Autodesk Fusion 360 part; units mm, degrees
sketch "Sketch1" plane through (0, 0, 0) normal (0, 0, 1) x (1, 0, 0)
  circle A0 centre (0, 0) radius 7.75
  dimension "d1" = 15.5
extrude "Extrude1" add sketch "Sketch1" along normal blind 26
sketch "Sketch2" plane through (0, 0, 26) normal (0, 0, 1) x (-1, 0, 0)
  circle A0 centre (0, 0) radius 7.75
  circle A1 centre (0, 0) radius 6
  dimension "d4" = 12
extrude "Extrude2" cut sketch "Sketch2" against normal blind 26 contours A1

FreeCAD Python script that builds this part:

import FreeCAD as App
import Part
import Sketcher

doc = App.newDocument("Part")
body = doc.addObject("PartDesign::Body", "Body")

sketch1 = body.newObject("Sketcher::SketchObject", "Sketch")
sketch1.AttachmentSupport = (doc.getObject("XY_Plane"), [""])
sketch1.MapMode = "FlatFace"
sketch1.addGeometry(Part.Circle(App.Vector(0, 0, 0), App.Vector(0, 0, 1), 8), False)
sketch1.addConstraint([
    Sketcher.Constraint("Coincident", 0, 3, -1, 1),
    Sketcher.Constraint("Diameter", 0, 15.5),
])
pad1 = body.newObject("PartDesign::Pad", "Pad")
pad1.Profile = sketch1
pad1.Length = 26

sketch2 = body.newObject("Sketcher::SketchObject", "Sketch001")
sketch2.AttachmentSupport = (doc.getObject("XY_Plane"), [""])
sketch2.MapMode = "FlatFace"
sketch2.AttachmentOffset = App.Placement(App.Vector(0, 0, 26), App.Rotation())
sketch2.addGeometry(Part.Circle(App.Vector(0, 0, 0), App.Vector(0, 0, 1), 6), False)
sketch2.addConstraint([
    Sketcher.Constraint("Coincident", 0, 3, -1, 1),
    Sketcher.Constraint("Diameter", 0, 12.0),
])
pocket1 = body.newObject("PartDesign::Pocket", "Pocket")
pocket1.Profile = sketch2
pocket1.Length = 26

doc.recompute()
